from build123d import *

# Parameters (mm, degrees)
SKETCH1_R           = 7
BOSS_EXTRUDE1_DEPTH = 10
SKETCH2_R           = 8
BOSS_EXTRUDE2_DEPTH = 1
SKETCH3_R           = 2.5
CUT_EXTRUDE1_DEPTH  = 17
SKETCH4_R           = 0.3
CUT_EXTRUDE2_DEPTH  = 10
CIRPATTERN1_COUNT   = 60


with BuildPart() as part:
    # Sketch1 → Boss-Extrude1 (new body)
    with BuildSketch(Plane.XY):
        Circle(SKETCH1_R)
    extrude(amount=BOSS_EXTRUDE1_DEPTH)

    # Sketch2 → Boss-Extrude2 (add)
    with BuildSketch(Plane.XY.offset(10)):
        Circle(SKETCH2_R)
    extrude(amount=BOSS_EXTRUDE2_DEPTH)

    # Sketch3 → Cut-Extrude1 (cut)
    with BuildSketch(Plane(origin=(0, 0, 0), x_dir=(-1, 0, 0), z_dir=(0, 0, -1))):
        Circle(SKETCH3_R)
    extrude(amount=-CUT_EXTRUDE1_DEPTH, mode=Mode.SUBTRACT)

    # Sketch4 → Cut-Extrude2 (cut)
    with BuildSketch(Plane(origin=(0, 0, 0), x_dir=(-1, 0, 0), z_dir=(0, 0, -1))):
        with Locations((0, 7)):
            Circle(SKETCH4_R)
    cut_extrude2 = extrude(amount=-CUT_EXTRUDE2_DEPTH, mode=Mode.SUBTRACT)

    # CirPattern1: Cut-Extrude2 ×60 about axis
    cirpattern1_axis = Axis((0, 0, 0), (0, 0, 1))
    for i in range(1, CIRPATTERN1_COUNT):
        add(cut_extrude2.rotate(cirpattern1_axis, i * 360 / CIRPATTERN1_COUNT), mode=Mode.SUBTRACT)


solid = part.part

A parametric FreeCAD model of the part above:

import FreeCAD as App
import Part
import Sketcher
Q = App.Units.Quantity

doc = App.newDocument("Part")
body = doc.addObject("PartDesign::Body", "Body")

# Sketch on XY plane
sketch1 = doc.addObject("Sketcher::SketchObject", "Sketch")
body.addObject(sketch1)
sketch1.AttachmentSupport = (doc.XY_Plane, [""])
sketch1.MapMode = "FlatFace"
sketch1.addGeometry(Part.Circle(App.Vector(0, 0, 0), App.Vector(0, 0, 1), 7), False)
sketch1.addConstraint(Sketcher.Constraint("Coincident", 0, 3, -1, 1))
sketch1.addConstraint(Sketcher.Constraint("Diameter", 0, Q("14 mm")))
pad1 = doc.addObject("PartDesign::Pad", "Pad")
body.addObject(pad1)
pad1.Profile = sketch1
pad1.Length = 10

# Sketch on XY plane
sketch2 = doc.addObject("Sketcher::SketchObject", "Sketch001")
body.addObject(sketch2)
sketch2.AttachmentSupport = (doc.XY_Plane, [""])
sketch2.MapMode = "FlatFace"
sketch2.AttachmentOffset = App.Placement(App.Vector(0, 0, 10), App.Rotation())
sketch2.addGeometry(Part.Circle(App.Vector(0, 0, 0), App.Vector(0, 0, 1), 8), False)
sketch2.addConstraint(Sketcher.Constraint("Coincident", 0, 3, -1, 1))
sketch2.addConstraint(Sketcher.Constraint("Diameter", 0, Q("16 mm")))
pad2 = doc.addObject("PartDesign::Pad", "Pad001")
body.addObject(pad2)
pad2.Profile = sketch2
pad2.Length = 1

# Sketch on XY plane
sketch3 = doc.addObject("Sketcher::SketchObject", "Sketch002")
body.addObject(sketch3)
sketch3.AttachmentSupport = (doc.XY_Plane, [""])
sketch3.MapMode = "FlatFace"
sketch3.addGeometry(Part.Circle(App.Vector(0, 0, 0), App.Vector(0, 0, 1), 2.5), False)
sketch3.addConstraint(Sketcher.Constraint("Coincident", 0, 3, -1, 1))
sketch3.addConstraint(Sketcher.Constraint("Diameter", 0, Q("5 mm")))
pocket1 = doc.addObject("PartDesign::Pocket", "Pocket")
body.addObject(pocket1)
pocket1.Profile = sketch3
pocket1.Length = 17
pocket1.Reversed = True

# Sketch on XY plane
sketch4 = doc.addObject("Sketcher::SketchObject", "Sketch003")
body.addObject(sketch4)
sketch4.AttachmentSupport = (doc.XY_Plane, [""])
sketch4.MapMode = "FlatFace"
sketch4.addGeometry(Part.Circle(App.Vector(0, 7, 0), App.Vector(0, 0, 1), 0.3), False)
sketch4.addConstraint(Sketcher.Constraint("PointOnObject", 0, 3, -2))
sketch4.addConstraint(Sketcher.Constraint("Diameter", 0, Q("0.6 mm")))
sketch4.addConstraint(Sketcher.Constraint("DistanceY", -1, 1, 0, 3, Q("7 mm")))
pocket2 = doc.addObject("PartDesign::Pocket", "Pocket001")
body.addObject(pocket2)
pocket2.Profile = sketch4
pocket2.Length = 10
pocket2.Reversed = True
doc.recompute()

polarpattern = doc.addObject("PartDesign::PolarPattern", "PolarPattern")
body.addObject(polarpattern)
polarpattern.Originals = [pocket2]
polarpattern.Axis = (doc.Z_Axis, [""])
polarpattern.Angle = 360
polarpattern.Occurrences = 60
body.Tip = polarpattern

doc.recompute()
